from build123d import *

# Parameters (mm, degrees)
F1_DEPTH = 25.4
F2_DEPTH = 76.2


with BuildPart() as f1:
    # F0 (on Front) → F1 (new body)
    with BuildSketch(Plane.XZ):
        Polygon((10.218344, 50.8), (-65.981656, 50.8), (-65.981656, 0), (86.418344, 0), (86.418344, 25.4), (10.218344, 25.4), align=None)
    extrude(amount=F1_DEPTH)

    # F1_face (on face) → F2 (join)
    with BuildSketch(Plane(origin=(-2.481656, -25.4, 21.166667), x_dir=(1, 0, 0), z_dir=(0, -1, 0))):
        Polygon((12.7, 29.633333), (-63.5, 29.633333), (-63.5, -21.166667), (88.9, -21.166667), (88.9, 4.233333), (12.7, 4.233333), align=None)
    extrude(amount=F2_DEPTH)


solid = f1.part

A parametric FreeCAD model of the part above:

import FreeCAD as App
import Part
import Sketcher

V = App.Vector
Q = App.Units.Quantity

doc = App.newDocument("Part")
params = doc.addObject("Spreadsheet::Sheet", "Params")
for row, (alias, value) in enumerate([
    ("sketch1_width", "3 in"),
    ("sketch1_height", "2 in"),
    ("pad1_length", "1 in"),
    ("sketch2_width", "3 in"),
    ("sketch2_height", "2 in"),
    ("pad2_length", "3 in"),
], start=1):
    params.set(f"A{row}", alias)
    params.set(f"B{row}", "=" + value)
    params.setAlias(f"B{row}", alias)

body = doc.addObject("PartDesign::Body", "Body")

# Sketch on XZ plane
sketch1 = body.newObject("Sketcher::SketchObject", "Sketch")
sketch1.AttachmentSupport = (doc.getObject("XZ_Plane"), [""])
sketch1.MapMode = "FlatFace"
sketch1.addGeometry([
    Part.LineSegment(V(10, 51, 0), V(-66, 51, 0)),  # 0
    Part.LineSegment(V(-66, 51, 0), V(-66, 0, 0)),  # 1
    Part.LineSegment(V(-66, 0, 0), V(86, 0, 0)),  # 2
    Part.LineSegment(V(86, 0, 0), V(86, 25, 0)),  # 3
    Part.LineSegment(V(86, 25, 0), V(10, 25, 0)),  # 4
    Part.LineSegment(V(10, 25, 0), V(10, 51, 0)),  # 5
], False)
sketch1.addConstraint([
    Sketcher.Constraint("Coincident", 0, 2, 1, 1),
    Sketcher.Constraint("Coincident", 1, 2, 2, 1),
    Sketcher.Constraint("Coincident", 2, 2, 3, 1),
    Sketcher.Constraint("Coincident", 3, 2, 4, 1),
    Sketcher.Constraint("Coincident", 4, 2, 5, 1),
    Sketcher.Constraint("Coincident", 5, 2, 0, 1),
    Sketcher.Constraint("Horizontal", 0),
    Sketcher.Constraint("Vertical", 1),
    Sketcher.Constraint("Horizontal", 2),
    Sketcher.Constraint("Vertical", 3),
    Sketcher.Constraint("Horizontal", 4),
    Sketcher.Constraint("Vertical", 5),
    Sketcher.Constraint("PointOnObject", 1, 2, -1),
    Sketcher.Constraint("Equal", 0, 4),
    Sketcher.Constraint("Equal", 3, 5),
    Sketcher.Constraint("DistanceX", 0, 2, 0, 1, Q("3 in")),
    Sketcher.Constraint("DistanceY", 1, 2, 1, 1, Q("2 in")),
    Sketcher.Constraint("DistanceX", 0, 2, -1, 1, Q("65.981656 mm")),
])
sketch1.setExpression("Constraints[15]", "Params.sketch1_width")
sketch1.setExpression("Constraints[16]", "Params.sketch1_height")
pad1 = body.newObject("PartDesign::Pad", "Pad")
pad1.Profile = sketch1
pad1.setExpression("Length", "Params.pad1_length")

# Sketch on XZ plane
sketch2 = body.newObject("Sketcher::SketchObject", "Sketch001")
sketch2.AttachmentSupport = (doc.getObject("XZ_Plane"), [""])
sketch2.MapMode = "FlatFace"
sketch2.AttachmentOffset = App.Placement(V(0, 0, 1 * 25.4), App.Rotation())
sketch2.addGeometry([
    Part.LineSegment(V(10, 51, 0), V(-66, 51, 0)),  # 0
    Part.LineSegment(V(-66, 51, 0), V(-66, 0, 0)),  # 1
    Part.LineSegment(V(-66, 0, 0), V(86, 0, 0)),  # 2
    Part.LineSegment(V(86, 0, 0), V(86, 25, 0)),  # 3
    Part.LineSegment(V(86, 25, 0), V(10, 25, 0)),  # 4
    Part.LineSegment(V(10, 25, 0), V(10, 51, 0)),  # 5
], False)
sketch2.addConstraint([
    Sketcher.Constraint("Coincident", 0, 2, 1, 1),
    Sketcher.Constraint("Coincident", 1, 2, 2, 1),
    Sketcher.Constraint("Coincident", 2, 2, 3, 1),
    Sketcher.Constraint("Coincident", 3, 2, 4, 1),
    Sketcher.Constraint("Coincident", 4, 2, 5, 1),
    Sketcher.Constraint("Coincident", 5, 2, 0, 1),
    Sketcher.Constraint("Horizontal", 0),
    Sketcher.Constraint("Vertical", 1),
    Sketcher.Constraint("Horizontal", 2),
    Sketcher.Constraint("Vertical", 3),
    Sketcher.Constraint("Horizontal", 4),
    Sketcher.Constraint("Vertical", 5),
    Sketcher.Constraint("PointOnObject", 1, 2, -1),
    Sketcher.Constraint("Equal", 0, 4),
    Sketcher.Constraint("Equal", 3, 5),
    Sketcher.Constraint("DistanceX", 0, 2, 0, 1, Q("3 in")),
    Sketcher.Constraint("DistanceY", 1, 2, 1, 1, Q("2 in")),
    Sketcher.Constraint("DistanceX", 0, 2, -1, 1, Q("65.981656 mm")),
])
sketch2.setExpression("Constraints[15]", "Params.sketch2_width")
sketch2.setExpression("Constraints[16]", "Params.sketch2_height")
pad2 = body.newObject("PartDesign::Pad", "Pad001")
pad2.Profile = sketch2
pad2.setExpression("Length", "Params.pad2_length")

doc.recompute()
